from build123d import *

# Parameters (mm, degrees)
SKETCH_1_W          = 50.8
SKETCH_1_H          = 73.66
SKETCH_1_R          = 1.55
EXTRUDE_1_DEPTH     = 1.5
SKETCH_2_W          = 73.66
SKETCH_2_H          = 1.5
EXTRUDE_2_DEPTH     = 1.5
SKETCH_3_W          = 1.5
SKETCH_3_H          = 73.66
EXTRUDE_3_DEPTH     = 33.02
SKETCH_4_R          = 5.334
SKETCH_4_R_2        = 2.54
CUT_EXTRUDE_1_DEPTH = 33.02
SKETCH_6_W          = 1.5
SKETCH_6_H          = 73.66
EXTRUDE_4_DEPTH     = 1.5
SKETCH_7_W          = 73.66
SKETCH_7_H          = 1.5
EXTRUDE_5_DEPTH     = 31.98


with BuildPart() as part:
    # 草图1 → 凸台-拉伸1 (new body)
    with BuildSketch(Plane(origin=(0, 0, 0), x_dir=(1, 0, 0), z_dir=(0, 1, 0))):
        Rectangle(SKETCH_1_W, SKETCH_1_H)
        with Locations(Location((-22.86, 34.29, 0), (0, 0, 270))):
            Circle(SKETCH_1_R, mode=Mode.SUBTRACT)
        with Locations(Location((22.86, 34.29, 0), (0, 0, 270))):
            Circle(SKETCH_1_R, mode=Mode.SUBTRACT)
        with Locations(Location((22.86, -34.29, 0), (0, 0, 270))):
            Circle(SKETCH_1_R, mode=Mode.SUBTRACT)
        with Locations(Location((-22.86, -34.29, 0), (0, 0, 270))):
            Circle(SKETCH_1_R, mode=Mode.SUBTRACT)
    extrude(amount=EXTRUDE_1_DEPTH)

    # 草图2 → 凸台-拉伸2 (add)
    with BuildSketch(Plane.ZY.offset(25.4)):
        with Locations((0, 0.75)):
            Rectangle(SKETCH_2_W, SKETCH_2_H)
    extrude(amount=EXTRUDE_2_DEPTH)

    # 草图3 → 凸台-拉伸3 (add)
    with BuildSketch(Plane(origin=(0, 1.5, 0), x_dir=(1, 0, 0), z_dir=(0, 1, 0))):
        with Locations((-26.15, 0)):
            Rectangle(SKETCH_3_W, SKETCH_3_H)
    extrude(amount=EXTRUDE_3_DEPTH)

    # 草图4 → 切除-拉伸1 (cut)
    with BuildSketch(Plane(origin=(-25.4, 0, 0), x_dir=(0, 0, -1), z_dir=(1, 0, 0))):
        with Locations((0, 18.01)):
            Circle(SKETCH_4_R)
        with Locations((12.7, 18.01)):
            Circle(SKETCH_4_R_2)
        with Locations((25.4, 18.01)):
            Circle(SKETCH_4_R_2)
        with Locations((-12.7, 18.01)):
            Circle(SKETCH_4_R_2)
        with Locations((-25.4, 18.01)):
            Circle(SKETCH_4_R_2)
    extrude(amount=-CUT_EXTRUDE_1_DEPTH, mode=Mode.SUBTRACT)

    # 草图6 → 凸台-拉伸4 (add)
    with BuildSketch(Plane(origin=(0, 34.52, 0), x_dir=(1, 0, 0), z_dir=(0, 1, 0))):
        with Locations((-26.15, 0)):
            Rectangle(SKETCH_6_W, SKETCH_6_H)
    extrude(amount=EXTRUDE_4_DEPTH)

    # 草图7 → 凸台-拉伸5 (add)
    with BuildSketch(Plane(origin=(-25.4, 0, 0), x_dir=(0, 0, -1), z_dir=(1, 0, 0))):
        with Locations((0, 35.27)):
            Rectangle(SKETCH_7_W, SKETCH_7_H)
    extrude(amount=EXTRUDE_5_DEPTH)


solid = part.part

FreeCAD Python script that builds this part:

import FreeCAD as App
import Part
import Sketcher
from FreeCAD import Vector
Q = App.Units.Quantity

doc = App.newDocument("Part")
params = doc.addObject("Spreadsheet::Sheet", "Params")
for row, (alias, value) in enumerate([
    ("sketch1_width", "2 in"),
    ("sketch1_height", "2.9 in"),
    ("pad1_length", "1.5 mm"),
    ("sketch2_height", "2.9 in"),
    ("pad2_length", "1.5 mm"),
    ("sketch3_height", "2.9 in"),
    ("pad3_length", "1.3 in"),
    ("sketch4_diameter", "0.2 in"),
    ("sketch4_diameter2", "0.42 in"),
    ("pocket1_length", "1.3 in"),
    ("sketch5_height", "2.9 in"),
    ("pad4_length", "1.5 mm"),
    ("sketch6_height", "2.9 in"),
    ("pad5_length", "31.98 mm"),
], start=1):
    params.set(f"A{row}", alias)
    params.set(f"B{row}", "=" + value)
    params.setAlias(f"B{row}", alias)

body = doc.addObject("PartDesign::Body", "Body")

# Sketch on XZ plane
sketch1 = body.newObject("Sketcher::SketchObject", "Sketch")
sketch1.AttachmentSupport = (doc.getObject("XZ_Plane"), [""])
sketch1.MapMode = "FlatFace"
sketch1.addGeometry(Part.LineSegment(Vector(-25.4, -36.83, 0), Vector(-25.4, 36.83, 0)), False)
sketch1.addGeometry(Part.LineSegment(Vector(-25.4, 36.83, 0), Vector(25.4, 36.83, 0)), False)
sketch1.addGeometry(Part.LineSegment(Vector(25.4, 36.83, 0), Vector(25.4, -36.83, 0)), False)
sketch1.addGeometry(Part.LineSegment(Vector(25.4, -36.83, 0), Vector(-25.4, -36.83, 0)), False)
sketch1.addGeometry(Part.Circle(Vector(-22.86, 34.29, 0), Vector(0, 0, 1), 1.55), False)
sketch1.addGeometry(Part.Circle(Vector(22.86, 34.29, 0), Vector(0, 0, 1), 1.55), False)
sketch1.addGeometry(Part.Circle(Vector(-22.86, -34.29, 0), Vector(0, 0, 1), 1.55), False)
sketch1.addGeometry(Part.Circle(Vector(22.86, -34.29, 0), Vector(0, 0, 1), 1.55), False)
sketch1.addConstraint(Sketcher.Constraint("Coincident", 0, 2, 1, 1))
sketch1.addConstraint(Sketcher.Constraint("Coincident", 1, 2, 2, 1))
sketch1.addConstraint(Sketcher.Constraint("Coincident", 2, 2, 3, 1))
sketch1.addConstraint(Sketcher.Constraint("Coincident", 3, 2, 0, 1))
sketch1.addConstraint(Sketcher.Constraint("Vertical", 0))
sketch1.addConstraint(Sketcher.Constraint("Horizontal", 1))
sketch1.addConstraint(Sketcher.Constraint("Vertical", 2))
sketch1.addConstraint(Sketcher.Constraint("Horizontal", 3))
sketch1.addConstraint(Sketcher.Constraint("Equal", 4, 5))
sketch1.addConstraint(Sketcher.Constraint("Equal", 5, 6))
sketch1.addConstraint(Sketcher.Constraint("Equal", 6, 7))
sketch1.addConstraint(Sketcher.Constraint("Symmetric", 5, 3, 6, 3, -1, 1))
sketch1.addConstraint(Sketcher.Constraint("Symmetric", 4, 3, 7, 3, -1, 1))
sketch1.addConstraint(Sketcher.Constraint("Symmetric", 0, 2, 2, 2, -1, 1))
sketch1.addConstraint(Sketcher.Constraint("Symmetric", 4, 3, 5, 3, -2))
sketch1.addConstraint(Sketcher.Constraint("DistanceX", 1, 1, 1, 2, Q("2 in")))
sketch1.addConstraint(Sketcher.Constraint("DistanceY", 0, 1, 0, 2, Q("2.9 in")))
sketch1.addConstraint(Sketcher.Constraint("DistanceX", 4, 3, -1, 1, Q("0.9 in")))
sketch1.addConstraint(Sketcher.Constraint("DistanceY", 6, 3, 4, 3, Q("2.7 in")))
sketch1.addConstraint(Sketcher.Constraint("Diameter", 4, 3.1))
sketch1.setExpression("Constraints[15]", "Params.sketch1_width")
sketch1.setExpression("Constraints[16]", "Params.sketch1_height")
pad1 = body.newObject("PartDesign::Pad", "Pad")
pad1.Profile = sketch1
pad1.setExpression("Length", "Params.pad1_length")
pad1.Reversed = True

# Sketch on YZ plane
sketch2 = body.newObject("Sketcher::SketchObject", "Sketch001")
sketch2.AttachmentSupport = (doc.getObject("YZ_Plane"), [""])
sketch2.MapMode = "FlatFace"
sketch2.AttachmentOffset = App.Placement(Vector(0, 0, -1 * 25.4), App.Rotation())
sketch2.addGeometry(Part.LineSegment(Vector(1.5, -36.83, 0), Vector(0, -36.83, 0)), False)
sketch2.addGeometry(Part.LineSegment(Vector(0, -36.83, 0), Vector(0, 36.83, 0)), False)
sketch2.addGeometry(Part.LineSegment(Vector(0, 36.83, 0), Vector(1.5, 36.83, 0)), False)
sketch2.addGeometry(Part.LineSegment(Vector(1.5, 36.83, 0), Vector(1.5, -36.83, 0)), False)
sketch2.addConstraint(Sketcher.Constraint("Coincident", 0, 2, 1, 1))
sketch2.addConstraint(Sketcher.Constraint("Coincident", 1, 2, 2, 1))
sketch2.addConstraint(Sketcher.Constraint("Coincident", 2, 2, 3, 1))
sketch2.addConstraint(Sketcher.Constraint("Coincident", 3, 2, 0, 1))
sketch2.addConstraint(Sketcher.Constraint("Horizontal", 0))
sketch2.addConstraint(Sketcher.Constraint("Vertical", 1))
sketch2.addConstraint(Sketcher.Constraint("Horizontal", 2))
sketch2.addConstraint(Sketcher.Constraint("Vertical", 3))
sketch2.addConstraint(Sketcher.Constraint("Symmetric", 0, 2, 1, 2, -1, 1))
sketch2.addConstraint(Sketcher.Constraint("DistanceY", 1, 1, 1, 2, Q("2.9 in")))
sketch2.addConstraint(Sketcher.Constraint("DistanceX", 0, 2, 0, 1, 1.5))
sketch2.setExpression("Constraints[9]", "Params.sketch2_height")
pad2 = body.newObject("PartDesign::Pad", "Pad001")
pad2.Profile = sketch2
pad2.setExpression("Length", "Params.pad2_length")
pad2.Reversed = True

# Sketch on XZ plane
sketch3 = body.newObject("Sketcher::SketchObject", "Sketch002")
sketch3.AttachmentSupport = (doc.getObject("XZ_Plane"), [""])
sketch3.MapMode = "FlatFace"
sketch3.AttachmentOffset = App.Placement(Vector(0, 0, -1.5), App.Rotation())
sketch3.addGeometry(Part.LineSegment(Vector(-26.9, -36.83, 0), Vector(-26.9, 36.83, 0)), False)
sketch3.addGeometry(Part.LineSegment(Vector(-26.9, 36.83, 0), Vector(-25.4, 36.83, 0)), False)
sketch3.addGeometry(Part.LineSegment(Vector(-25.4, 36.83, 0), Vector(-25.4, -36.83, 0)), False)
sketch3.addGeometry(Part.LineSegment(Vector(-25.4, -36.83, 0), Vector(-26.9, -36.83, 0)), False)
sketch3.addConstraint(Sketcher.Constraint("Coincident", 0, 2, 1, 1))
sketch3.addConstraint(Sketcher.Constraint("Coincident", 1, 2, 2, 1))
sketch3.addConstraint(Sketcher.Constraint("Coincident", 2, 2, 3, 1))
sketch3.addConstraint(Sketcher.Constraint("Coincident", 3, 2, 0, 1))
sketch3.addConstraint(Sketcher.Constraint("Vertical", 0))
sketch3.addConstraint(Sketcher.Constraint("Horizontal", 1))
sketch3.addConstraint(Sketcher.Constraint("Vertical", 2))
sketch3.addConstraint(Sketcher.Constraint("Horizontal", 3))
sketch3.addConstraint(Sketcher.Constraint("DistanceY", 0, 1, 0, 2, Q("2.9 in")))
sketch3.addConstraint(Sketcher.Constraint("DistanceX", 1, 2, -1, 1, Q("1 in")))
sketch3.addConstraint(Sketcher.Constraint("DistanceY", -1, 1, 0, 2, Q("1.45 in")))
sketch3.addConstraint(Sketcher.Constraint("DistanceX", 1, 1, 1, 2, 1.5))
sketch3.setExpression("Constraints[8]", "Params.sketch3_height")
pad3 = body.newObject("PartDesign::Pad", "Pad002")
pad3.Profile = sketch3
pad3.setExpression("Length", "Params.pad3_length")
pad3.Reversed = True

# Sketch on YZ plane
sketch4 = body.newObject("Sketcher::SketchObject", "Sketch003")
sketch4.AttachmentSupport = (doc.getObject("YZ_Plane"), [""])
sketch4.MapMode = "FlatFace"
sketch4.AttachmentOffset = App.Placement(Vector(0, 0, -1 * 25.4), App.Rotation())
sketch4.addGeometry(Part.Circle(Vector(18.01, 0, 0), Vector(0, 0, 1), 5.334), False)
sketch4.addGeometry(Part.Circle(Vector(18.01, -12.7, 0), Vector(0, 0, 1), 2.54), False)
sketch4.addGeometry(Part.Circle(Vector(18.01, -25.4, 0), Vector(0, 0, 1), 2.54), False)
sketch4.addGeometry(Part.Circle(Vector(18.01, 12.7, 0), Vector(0, 0, 1), 2.54), False)
sketch4.addGeometry(Part.Circle(Vector(18.01, 25.4, 0), Vector(0, 0, 1), 2.54), False)
sketch4.addConstraint(Sketcher.Constraint("Equal", 1, 2))
sketch4.addConstraint(Sketcher.Constraint("Equal", 2, 3))
sketch4.addConstraint(Sketcher.Constraint("Equal", 3, 4))
sketch4.addConstraint(Sketcher.Constraint("Symmetric", 1, 3, 3, 3, -1))
sketch4.addConstraint(Sketcher.Constraint("Symmetric", 2, 3, 4, 3, -1))
sketch4.addConstraint(Sketcher.Constraint("PointOnObject", 0, 3, -1))
sketch4.addConstraint(Sketcher.Constraint("Vertical", 0, 3, 1, 3))
sketch4.addConstraint(Sketcher.Constraint("Vertical", 1, 3, 2, 3))
sketch4.addConstraint(Sketcher.Constraint("Diameter", 1, Q("0.2 in")))
sketch4.addConstraint(Sketcher.Constraint("Diameter", 0, Q("0.42 in")))
sketch4.addConstraint(Sketcher.Constraint("DistanceY", 2, 3, -1, 1, Q("1 in")))
sketch4.addConstraint(Sketcher.Constraint("DistanceY", 1, 3, 3, 3, Q("1 in")))
sketch4.addConstraint(Sketcher.Constraint("DistanceX", -1, 1, 0, 3, 18.01))
sketch4.setExpression("Constraints[8]", "Params.sketch4_diameter")
sketch4.setExpression("Constraints[9]", "Params.sketch4_diameter2")
pocket1 = body.newObject("PartDesign::Pocket", "Pocket")
pocket1.Profile = sketch4
pocket1.setExpression("Length", "Params.pocket1_length")

# Sketch on XZ plane
sketch5 = body.newObject("Sketcher::SketchObject", "Sketch004")
sketch5.AttachmentSupport = (doc.getObject("XZ_Plane"), [""])
sketch5.MapMode = "FlatFace"
sketch5.AttachmentOffset = App.Placement(Vector(0, 0, -34.52), App.Rotation())
sketch5.addGeometry(Part.LineSegment(Vector(-26.9, -36.83, 0), Vector(-26.9, 36.83, 0)), False)
sketch5.addGeometry(Part.LineSegment(Vector(-26.9, 36.83, 0), Vector(-25.4, 36.83, 0)), False)
sketch5.addGeometry(Part.LineSegment(Vector(-25.4, 36.83, 0), Vector(-25.4, -36.83, 0)), False)
sketch5.addGeometry(Part.LineSegment(Vector(-25.4, -36.83, 0), Vector(-26.9, -36.83, 0)), False)
sketch5.addConstraint(Sketcher.Constraint("Coincident", 0, 2, 1, 1))
sketch5.addConstraint(Sketcher.Constraint("Coincident", 1, 2, 2, 1))
sketch5.addConstraint(Sketcher.Constraint("Coincident", 2, 2, 3, 1))
sketch5.addConstraint(Sketcher.Constraint("Coincident", 3, 2, 0, 1))
sketch5.addConstraint(Sketcher.Constraint("Vertical", 0))
sketch5.addConstraint(Sketcher.Constraint("Horizontal", 1))
sketch5.addConstraint(Sketcher.Constraint("Vertical", 2))
sketch5.addConstraint(Sketcher.Constraint("Horizontal", 3))
sketch5.addConstraint(Sketcher.Constraint("DistanceY", 0, 1, 0, 2, Q("2.9 in")))
sketch5.addConstraint(Sketcher.Constraint("DistanceX", 1, 2, -1, 1, Q("1 in")))
sketch5.addConstraint(Sketcher.Constraint("DistanceY", -1, 1, 0, 2, Q("1.45 in")))
sketch5.addConstraint(Sketcher.Constraint("DistanceX", 1, 1, 1, 2, 1.5))
sketch5.setExpression("Constraints[8]", "Params.sketch5_height")
pad4 = body.newObject("PartDesign::Pad", "Pad003")
pad4.Profile = sketch5
pad4.setExpression("Length", "Params.pad4_length")
pad4.Reversed = True

# Sketch on YZ plane
sketch6 = body.newObject("Sketcher::SketchObject", "Sketch005")
sketch6.AttachmentSupport = (doc.getObject("YZ_Plane"), [""])
sketch6.MapMode = "FlatFace"
sketch6.AttachmentOffset = App.Placement(Vector(0, 0, -1 * 25.4), App.Rotation())
sketch6.addGeometry(Part.LineSegment(Vector(36.02, 36.83, 0), Vector(34.52, 36.83, 0)), False)
sketch6.addGeometry(Part.LineSegment(Vector(34.52, 36.83, 0), Vector(34.52, -36.83, 0)), False)
sketch6.addGeometry(Part.LineSegment(Vector(34.52, -36.83, 0), Vector(36.02, -36.83, 0)), False)
sketch6.addGeometry(Part.LineSegment(Vector(36.02, -36.83, 0), Vector(36.02, 36.83, 0)), False)
sketch6.addConstraint(Sketcher.Constraint("Coincident", 0, 2, 1, 1))
sketch6.addConstraint(Sketcher.Constraint("Coincident", 1, 2, 2, 1))
sketch6.addConstraint(Sketcher.Constraint("Coincident", 2, 2, 3, 1))
sketch6.addConstraint(Sketcher.Constraint("Coincident", 3, 2, 0, 1))
sketch6.addConstraint(Sketcher.Constraint("Horizontal", 0))
sketch6.addConstraint(Sketcher.Constraint("Vertical", 1))
sketch6.addConstraint(Sketcher.Constraint("Horizontal", 2))
sketch6.addConstraint(Sketcher.Constraint("Vertical", 3))
sketch6.addConstraint(Sketcher.Constraint("DistanceY", 1, 2, 1, 1, Q("2.9 in")))
sketch6.addConstraint(Sketcher.Constraint("DistanceY", -1, 1, 0, 2, Q("1.45 in")))
sketch6.addConstraint(Sketcher.Constraint("DistanceX", 0, 2, 0, 1, 1.5))
sketch6.addConstraint(Sketcher.Constraint("DistanceX", -1, 1, 0, 2, 34.52))
sketch6.setExpression("Constraints[8]", "Params.sketch6_height")
pad5 = body.newObject("PartDesign::Pad", "Pad004")
pad5.Profile = sketch6
pad5.setExpression("Length", "Params.pad5_length")

doc.recompute()
